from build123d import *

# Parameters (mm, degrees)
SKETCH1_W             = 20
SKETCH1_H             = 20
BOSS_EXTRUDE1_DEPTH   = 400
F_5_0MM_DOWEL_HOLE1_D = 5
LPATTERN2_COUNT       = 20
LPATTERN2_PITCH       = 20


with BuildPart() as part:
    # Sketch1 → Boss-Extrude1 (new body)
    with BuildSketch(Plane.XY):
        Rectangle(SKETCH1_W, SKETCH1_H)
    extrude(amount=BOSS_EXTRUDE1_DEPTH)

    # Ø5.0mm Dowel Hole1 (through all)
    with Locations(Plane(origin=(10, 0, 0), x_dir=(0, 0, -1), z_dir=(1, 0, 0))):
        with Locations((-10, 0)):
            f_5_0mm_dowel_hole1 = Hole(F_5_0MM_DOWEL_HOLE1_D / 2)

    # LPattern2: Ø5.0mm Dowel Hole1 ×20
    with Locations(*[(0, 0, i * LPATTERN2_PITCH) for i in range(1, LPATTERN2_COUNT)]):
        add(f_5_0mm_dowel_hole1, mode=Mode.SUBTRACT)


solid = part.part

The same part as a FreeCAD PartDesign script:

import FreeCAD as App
import Part
import Sketcher
from FreeCAD import Vector
Q = App.Units.Quantity

doc = App.newDocument("Part")
body = doc.addObject("PartDesign::Body", "Body")

# Sketch on XY plane
sketch1 = body.newObject("Sketcher::SketchObject", "Sketch")
sketch1.AttachmentSupport = (doc.getObject("XY_Plane"), [""])
sketch1.MapMode = "FlatFace"
sketch1.addGeometry([
    Part.LineSegment(Vector(-10, 10, 0), Vector(-10, -10, 0)),
    Part.LineSegment(Vector(-10, -10, 0), Vector(10, -10, 0)),
    Part.LineSegment(Vector(10, -10, 0), Vector(10, 10, 0)),
    Part.LineSegment(Vector(10, 10, 0), Vector(-10, 10, 0)),
], False)
sketch1.addConstraint([
    Sketcher.Constraint("Coincident", 0, 2, 1, 1),
    Sketcher.Constraint("Coincident", 1, 2, 2, 1),
    Sketcher.Constraint("Coincident", 2, 2, 3, 1),
    Sketcher.Constraint("Coincident", 3, 2, 0, 1),
    Sketcher.Constraint("Vertical", 0),
    Sketcher.Constraint("Horizontal", 1),
    Sketcher.Constraint("Vertical", 2),
    Sketcher.Constraint("Horizontal", 3),
    Sketcher.Constraint("Symmetric", 0, 2, 2, 2, -1, 1),
    Sketcher.Constraint("Equal", 3, 0),
    Sketcher.Constraint("DistanceX", 1, 1, 1, 2, Q("20 mm")),
])
pad1 = body.newObject("PartDesign::Pad", "Pad")
pad1.Profile = sketch1
pad1.Length = 400

# Sketch on YZ plane
sketch2 = body.newObject("Sketcher::SketchObject", "Sketch001")
sketch2.AttachmentSupport = (doc.getObject("YZ_Plane"), [""])
sketch2.MapMode = "FlatFace"
sketch2.AttachmentOffset = App.Placement(Vector(0, 0, 10), App.Rotation())
sketch2.addGeometry(Part.Circle(Vector(0, 10, 0), Vector(0, 0, 1), 2.5), False)
sketch2.addConstraint([
    Sketcher.Constraint("PointOnObject", 0, 3, -2),
    Sketcher.Constraint("Diameter", 0, Q("5 mm")),
    Sketcher.Constraint("DistanceY", -1, 1, 0, 3, Q("10 mm")),
])
doc.recompute()
hole = body.newObject("PartDesign::Hole", "Hole")
hole.Profile = sketch2
hole.ThreadType = "None"
hole.Diameter = 5
hole.DepthType = "ThroughAll"
doc.recompute()

linearpattern = body.newObject("PartDesign::LinearPattern", "LinearPattern")
linearpattern.Originals = [hole]
linearpattern.Direction = (doc.getObject("Z_Axis"), [""])
linearpattern.Mode = "offset"
linearpattern.Offset = 20
linearpattern.Occurrences = 20
body.Tip = linearpattern

doc.recompute()
